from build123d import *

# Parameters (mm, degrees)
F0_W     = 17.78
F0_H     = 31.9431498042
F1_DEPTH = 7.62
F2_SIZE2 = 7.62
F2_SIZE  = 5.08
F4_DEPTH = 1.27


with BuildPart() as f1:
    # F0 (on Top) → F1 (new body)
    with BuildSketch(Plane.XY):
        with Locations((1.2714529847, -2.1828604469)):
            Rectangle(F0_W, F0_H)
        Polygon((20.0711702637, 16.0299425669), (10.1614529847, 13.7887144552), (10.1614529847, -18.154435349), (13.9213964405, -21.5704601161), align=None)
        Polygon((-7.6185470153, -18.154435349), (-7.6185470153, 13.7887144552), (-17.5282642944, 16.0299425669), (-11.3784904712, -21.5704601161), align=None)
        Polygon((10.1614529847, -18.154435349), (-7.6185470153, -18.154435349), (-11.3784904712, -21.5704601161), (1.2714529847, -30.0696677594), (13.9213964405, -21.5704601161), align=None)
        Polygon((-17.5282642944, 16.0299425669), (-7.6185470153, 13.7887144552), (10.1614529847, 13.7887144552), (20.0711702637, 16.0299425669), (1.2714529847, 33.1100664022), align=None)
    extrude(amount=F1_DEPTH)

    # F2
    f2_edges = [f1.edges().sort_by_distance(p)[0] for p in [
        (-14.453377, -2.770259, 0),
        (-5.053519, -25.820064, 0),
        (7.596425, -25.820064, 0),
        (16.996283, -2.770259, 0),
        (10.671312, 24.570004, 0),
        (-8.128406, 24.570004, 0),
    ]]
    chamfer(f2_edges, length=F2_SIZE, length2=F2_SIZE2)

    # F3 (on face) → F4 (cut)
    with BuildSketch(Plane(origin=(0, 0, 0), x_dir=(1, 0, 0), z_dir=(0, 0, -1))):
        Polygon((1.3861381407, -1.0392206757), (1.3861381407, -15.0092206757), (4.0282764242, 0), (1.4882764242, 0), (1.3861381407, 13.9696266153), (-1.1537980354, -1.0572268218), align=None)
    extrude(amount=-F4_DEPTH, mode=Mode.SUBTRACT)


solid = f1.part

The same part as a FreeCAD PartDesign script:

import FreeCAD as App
import Part
import Sketcher
from FreeCAD import Vector
Q = App.Units.Quantity


def edges_at(feature, points):
    """Names of the edges that pass closest to the given points."""
    edges = feature.Shape.Edges
    near = lambda p: min(range(len(edges)), key=lambda i: edges[i].distToShape(Part.Vertex(*p))[0])
    return sorted({f"Edge{near(p) + 1}" for p in points})


def add_polygon(sketch, points):
    """Adds a closed chain of lines whose ends are joined by coincident constraints."""
    first, n = sketch.GeometryCount, len(points)
    for a, b in zip(points, points[1:] + points[:1]):
        sketch.addGeometry(Part.LineSegment(App.Vector(*a, 0), App.Vector(*b, 0)), False)
    for i in range(n):
        sketch.addConstraint(Sketcher.Constraint("Coincident", first + i, 2, first + (i + 1) % n, 1))

doc = App.newDocument("Part")
body = doc.addObject("PartDesign::Body", "Body")

# Sketch on XY plane
sketch1 = body.newObject("Sketcher::SketchObject", "Sketch")
sketch1.AttachmentSupport = (doc.getObject("XY_Plane"), [""])
sketch1.MapMode = "FlatFace"
add_polygon(sketch1, [(14, -22), (20, 16), (1, 33), (-18, 16), (-11, -22), (1, -30)])  # lines 0-5
sketch1.addConstraint([
    Sketcher.Constraint("Horizontal", 0, 2, 2, 2),
    Sketcher.Constraint("Horizontal", 3, 2, 5, 2),
    Sketcher.Constraint("Vertical", 1, 2, 4, 2),
    Sketcher.Constraint("Equal", 1, 2),
    Sketcher.Constraint("Equal", 0, 3),
    Sketcher.Constraint("Distance", 1, Q("1 in")),
    Sketcher.Constraint("Distance", 0, Q("1.5 in")),
    Sketcher.Constraint("Distance", 4, Q("0.6 in")),
    Sketcher.Constraint("DistanceY", -1, 1, 0, 2, Q("0.6311001 in")),
    Sketcher.Constraint("DistanceX", -1, 1, 0, 2, Q("20.07117 mm")),
    Sketcher.Constraint("DistanceX", 3, 2, -1, 1, Q("11.37849 mm")),
    Sketcher.Constraint("DistanceY", 3, 2, -1, 1, Q("21.57046 mm")),
])
pad1 = body.newObject("PartDesign::Pad", "Pad")
pad1.Profile = sketch1
pad1.Length = Q("0.3 in")
doc.recompute()

chamfer = body.newObject("PartDesign::Chamfer", "Chamfer")
chamfer.Base = (pad1, edges_at(pad1, [
    (-14.453, -2.77, 0),
    (-5.054, -25.82, 0),
    (7.596, -25.82, 0),
    (16.996, -2.77, 0),
    (10.671, 24.57, 0),
    (-8.128, 24.57, 0),
]))
chamfer.ChamferType = "Two distances"
chamfer.Size = Q("0.2 in")
chamfer.Size2 = Q("0.3 in")

# Sketch on XY plane
sketch2 = body.newObject("Sketcher::SketchObject", "Sketch001")
sketch2.AttachmentSupport = (doc.getObject("XY_Plane"), [""])
sketch2.MapMode = "FlatFace"
add_polygon(sketch2, [(1.4, 1), (1.4, 15), (4, 0), (1.5, 0), (1.4, -14), (-1.2, 1.1)])  # lines 0-5
sketch2.addConstraint([
    Sketcher.Constraint("Vertical", 0),
    Sketcher.Constraint("Horizontal", 2),
    Sketcher.Constraint("PointOnObject", 1, 2, -1),
    Sketcher.Constraint("Vertical", 0, 2, 3, 2),
    Sketcher.Constraint("Equal", 1, 4),
    Sketcher.Constraint("DistanceX", 2, 2, 2, 1, Q("0.1 in")),
    Sketcher.Constraint("Distance", 1, Q("0.6 in")),
    Sketcher.Constraint("Distance", 5, Q("0.1 in")),
    Sketcher.Constraint("DistanceY", 0, 1, 0, 2, Q("0.55 in")),
    Sketcher.Constraint("Distance", 3, Q("0.55 in")),
    Sketcher.Constraint("DistanceX", 4, 2, -1, 1, Q("1.153798 mm")),
    Sketcher.Constraint("DistanceY", -1, 1, 0, 2, Q("15.009221 mm")),
])
pocket1 = body.newObject("PartDesign::Pocket", "Pocket")
pocket1.Profile = sketch2
pocket1.Length = Q("0.05 in")
pocket1.Reversed = True

doc.recompute()
